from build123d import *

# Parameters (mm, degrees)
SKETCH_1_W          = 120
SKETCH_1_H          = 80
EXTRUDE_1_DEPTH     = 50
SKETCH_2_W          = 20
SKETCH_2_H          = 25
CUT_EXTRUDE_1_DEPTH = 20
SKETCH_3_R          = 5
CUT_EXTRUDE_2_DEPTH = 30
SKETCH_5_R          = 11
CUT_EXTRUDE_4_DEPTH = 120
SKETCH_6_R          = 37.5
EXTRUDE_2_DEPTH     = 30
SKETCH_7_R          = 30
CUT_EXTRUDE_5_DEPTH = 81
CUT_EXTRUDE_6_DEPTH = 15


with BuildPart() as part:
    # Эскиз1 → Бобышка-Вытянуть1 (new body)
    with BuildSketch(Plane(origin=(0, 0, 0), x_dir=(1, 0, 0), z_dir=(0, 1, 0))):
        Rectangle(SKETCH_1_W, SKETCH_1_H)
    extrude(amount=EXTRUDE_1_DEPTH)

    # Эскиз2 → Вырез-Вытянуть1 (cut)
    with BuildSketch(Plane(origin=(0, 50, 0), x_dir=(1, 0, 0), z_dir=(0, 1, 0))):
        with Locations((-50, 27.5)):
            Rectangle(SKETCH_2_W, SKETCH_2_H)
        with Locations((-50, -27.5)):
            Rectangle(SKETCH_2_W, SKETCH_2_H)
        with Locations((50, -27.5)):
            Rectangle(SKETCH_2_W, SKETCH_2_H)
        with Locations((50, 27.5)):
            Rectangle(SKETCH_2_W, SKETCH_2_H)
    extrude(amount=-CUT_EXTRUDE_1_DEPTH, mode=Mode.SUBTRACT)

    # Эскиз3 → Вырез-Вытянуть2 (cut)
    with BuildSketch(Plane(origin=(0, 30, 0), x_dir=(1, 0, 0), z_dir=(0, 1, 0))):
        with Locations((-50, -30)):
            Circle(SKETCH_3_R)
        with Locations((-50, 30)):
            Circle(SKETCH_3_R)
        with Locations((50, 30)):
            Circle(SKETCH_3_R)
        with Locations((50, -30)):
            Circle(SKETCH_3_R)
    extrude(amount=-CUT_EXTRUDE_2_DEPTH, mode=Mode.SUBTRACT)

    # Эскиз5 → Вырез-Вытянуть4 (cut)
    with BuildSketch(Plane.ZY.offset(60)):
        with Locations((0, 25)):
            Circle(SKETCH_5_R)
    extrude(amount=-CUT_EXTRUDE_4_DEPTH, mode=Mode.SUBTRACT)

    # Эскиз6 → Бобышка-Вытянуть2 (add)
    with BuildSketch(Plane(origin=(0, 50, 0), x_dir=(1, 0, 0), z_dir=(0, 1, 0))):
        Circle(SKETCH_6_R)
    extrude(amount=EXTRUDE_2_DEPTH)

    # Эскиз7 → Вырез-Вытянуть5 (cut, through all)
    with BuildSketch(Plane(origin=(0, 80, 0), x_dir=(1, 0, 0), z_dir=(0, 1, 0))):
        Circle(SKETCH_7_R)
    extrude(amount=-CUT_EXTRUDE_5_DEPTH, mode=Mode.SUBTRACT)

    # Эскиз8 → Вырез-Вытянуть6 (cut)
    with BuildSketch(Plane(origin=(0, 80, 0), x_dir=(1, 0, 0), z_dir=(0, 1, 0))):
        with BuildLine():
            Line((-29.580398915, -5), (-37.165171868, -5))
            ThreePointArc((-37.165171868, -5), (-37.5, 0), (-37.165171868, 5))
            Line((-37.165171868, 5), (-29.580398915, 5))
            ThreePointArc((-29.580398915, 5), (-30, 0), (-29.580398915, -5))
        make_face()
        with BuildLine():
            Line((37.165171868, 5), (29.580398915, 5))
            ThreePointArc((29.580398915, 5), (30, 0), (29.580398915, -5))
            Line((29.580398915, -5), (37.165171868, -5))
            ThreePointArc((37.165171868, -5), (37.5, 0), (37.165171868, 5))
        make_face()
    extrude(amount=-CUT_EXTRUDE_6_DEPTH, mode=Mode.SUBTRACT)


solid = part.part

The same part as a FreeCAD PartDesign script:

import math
import FreeCAD as App
import Part
import Sketcher

V = App.Vector
Q = App.Units.Quantity


def add_polygon(sketch, points):
    """Adds a closed chain of lines whose ends are joined by coincident constraints."""
    first, n = sketch.GeometryCount, len(points)
    for a, b in zip(points, points[1:] + points[:1]):
        sketch.addGeometry(Part.LineSegment(App.Vector(*a, 0), App.Vector(*b, 0)), False)
    for i in range(n):
        sketch.addConstraint(Sketcher.Constraint("Coincident", first + i, 2, first + (i + 1) % n, 1))

doc = App.newDocument("Part")
body = doc.addObject("PartDesign::Body", "Body")

# Sketch on XZ plane
sketch1 = body.newObject("Sketcher::SketchObject", "Sketch")
sketch1.AttachmentSupport = (doc.getObject("XZ_Plane"), [""])
sketch1.MapMode = "FlatFace"
add_polygon(sketch1, [(-60, -40), (-60, 40), (60, 40), (60, -40)])  # lines 0-3
sketch1.addConstraint([
    Sketcher.Constraint("Vertical", 0),
    Sketcher.Constraint("Horizontal", 1),
    Sketcher.Constraint("Vertical", 2),
    Sketcher.Constraint("Horizontal", 3),
    Sketcher.Constraint("Symmetric", 0, 2, 2, 2, -1, 1),
    Sketcher.Constraint("DistanceX", 1, 1, 1, 2, Q("120 mm")),
    Sketcher.Constraint("DistanceY", 0, 1, 0, 2, Q("80 mm")),
])
pad1 = body.newObject("PartDesign::Pad", "Pad")
pad1.Profile = sketch1
pad1.Length = 50
pad1.Reversed = True

# Sketch on XZ plane
sketch2 = body.newObject("Sketcher::SketchObject", "Sketch001")
sketch2.AttachmentSupport = (doc.getObject("XZ_Plane"), [""])
sketch2.MapMode = "FlatFace"
sketch2.AttachmentOffset = App.Placement(V(0, 0, -50), App.Rotation())
add_polygon(sketch2, [(-60, -40), (-60, -15), (-40, -15), (-40, -40)])  # lines 0-3
add_polygon(sketch2, [(-60, 15), (-60, 40), (-40, 40), (-40, 15)])  # lines 4-7
add_polygon(sketch2, [(40, 15), (40, 40), (60, 40), (60, 15)])  # lines 8-11
add_polygon(sketch2, [(40, -40), (40, -15), (60, -15), (60, -40)])  # lines 12-15
sketch2.addConstraint([
    Sketcher.Constraint("Vertical", 0),
    Sketcher.Constraint("Horizontal", 1),
    Sketcher.Constraint("Vertical", 2),
    Sketcher.Constraint("Horizontal", 3),
    Sketcher.Constraint("Vertical", 4),
    Sketcher.Constraint("Horizontal", 5),
    Sketcher.Constraint("Vertical", 6),
    Sketcher.Constraint("Horizontal", 7),
    Sketcher.Constraint("Vertical", 8),
    Sketcher.Constraint("Horizontal", 9),
    Sketcher.Constraint("Vertical", 10),
    Sketcher.Constraint("Horizontal", 11),
    Sketcher.Constraint("Vertical", 12),
    Sketcher.Constraint("Horizontal", 13),
    Sketcher.Constraint("Vertical", 14),
    Sketcher.Constraint("Horizontal", 15),
    Sketcher.Constraint("Symmetric", 2, 2, 8, 2, -1, 1),
    Sketcher.Constraint("Symmetric", 0, 2, 10, 2, -1, 1),
    Sketcher.Constraint("Symmetric", 6, 2, 12, 2, -1, 1),
    Sketcher.Constraint("Symmetric", 4, 2, 14, 2, -1, 1),
    Sketcher.Constraint("Symmetric", 5, 2, 8, 2, -2),
    Sketcher.Constraint("Symmetric", 7, 2, 10, 2, -2),
    Sketcher.Constraint("DistanceX", 1, 1, 1, 2, Q("20 mm")),
    Sketcher.Constraint("DistanceY", 0, 1, 0, 2, Q("25 mm")),
    Sketcher.Constraint("DistanceX", 0, 2, -1, 1, Q("60 mm")),
    Sketcher.Constraint("DistanceY", 0, 2, -1, 1, Q("15 mm")),
])
pocket1 = body.newObject("PartDesign::Pocket", "Pocket")
pocket1.Profile = sketch2
pocket1.Length = 20
pocket1.Reversed = True

# Sketch on XZ plane
sketch3 = body.newObject("Sketcher::SketchObject", "Sketch002")
sketch3.AttachmentSupport = (doc.getObject("XZ_Plane"), [""])
sketch3.MapMode = "FlatFace"
sketch3.AttachmentOffset = App.Placement(V(0, 0, -30), App.Rotation())
sketch3.addGeometry([
    Part.Circle(V(-50, 30, 0), V(0, 0, 1), 5),
    Part.Circle(V(-50, -30, 0), V(0, 0, 1), 5),
    Part.Circle(V(50, -30, 0), V(0, 0, 1), 5),
    Part.Circle(V(50, 30, 0), V(0, 0, 1), 5),
], False)
sketch3.addConstraint([
    Sketcher.Constraint("Equal", 0, 1),
    Sketcher.Constraint("Equal", 1, 2),
    Sketcher.Constraint("Equal", 2, 3),
    Sketcher.Constraint("Symmetric", 0, 3, 2, 3, -1, 1),
    Sketcher.Constraint("Symmetric", 1, 3, 3, 3, -1, 1),
    Sketcher.Constraint("Symmetric", 1, 3, 2, 3, -2),
    Sketcher.Constraint("Diameter", 0, Q("10 mm")),
    Sketcher.Constraint("DistanceX", 0, 3, -1, 1, Q("50 mm")),
    Sketcher.Constraint("DistanceY", -1, 1, 0, 3, Q("30 mm")),
])
pocket2 = body.newObject("PartDesign::Pocket", "Pocket001")
pocket2.Profile = sketch3
pocket2.Length = 30
pocket2.Reversed = True

# Sketch on YZ plane
sketch4 = body.newObject("Sketcher::SketchObject", "Sketch003")
sketch4.AttachmentSupport = (doc.getObject("YZ_Plane"), [""])
sketch4.MapMode = "FlatFace"
sketch4.AttachmentOffset = App.Placement(V(0, 0, -60), App.Rotation())
sketch4.addGeometry(Part.Circle(V(25, 0, 0), V(0, 0, 1), 11), False)
sketch4.addConstraint([
    Sketcher.Constraint("PointOnObject", 0, 3, -1),
    Sketcher.Constraint("Diameter", 0, Q("22 mm")),
    Sketcher.Constraint("DistanceX", -1, 1, 0, 3, Q("25 mm")),
])
pocket3 = body.newObject("PartDesign::Pocket", "Pocket002")
pocket3.Profile = sketch4
pocket3.Length = 120
pocket3.Reversed = True

# Sketch on XZ plane
sketch5 = body.newObject("Sketcher::SketchObject", "Sketch004")
sketch5.AttachmentSupport = (doc.getObject("XZ_Plane"), [""])
sketch5.MapMode = "FlatFace"
sketch5.AttachmentOffset = App.Placement(V(0, 0, -50), App.Rotation())
sketch5.addGeometry(Part.Circle(V(0, 0, 0), V(0, 0, 1), 37.5), False)
sketch5.addConstraint([
    Sketcher.Constraint("Coincident", 0, 3, -1, 1),
    Sketcher.Constraint("Diameter", 0, Q("75 mm")),
])
pad2 = body.newObject("PartDesign::Pad", "Pad001")
pad2.Profile = sketch5
pad2.Length = 30
pad2.Reversed = True

# Sketch on XZ plane
sketch6 = body.newObject("Sketcher::SketchObject", "Sketch005")
sketch6.AttachmentSupport = (doc.getObject("XZ_Plane"), [""])
sketch6.MapMode = "FlatFace"
sketch6.AttachmentOffset = App.Placement(V(0, 0, -80), App.Rotation())
sketch6.addGeometry(Part.Circle(V(0, 0, 0), V(0, 0, 1), 30), False)
sketch6.addConstraint([
    Sketcher.Constraint("Coincident", 0, 3, -1, 1),
    Sketcher.Constraint("Diameter", 0, Q("60 mm")),
])
pocket4 = body.newObject("PartDesign::Pocket", "Pocket003")
pocket4.Profile = sketch6
pocket4.Type = "ThroughAll"
pocket4.Reversed = True

# Sketch on XZ plane
sketch7 = body.newObject("Sketcher::SketchObject", "Sketch006")
sketch7.AttachmentSupport = (doc.getObject("XZ_Plane"), [""])
sketch7.MapMode = "FlatFace"
sketch7.AttachmentOffset = App.Placement(V(0, 0, -80), App.Rotation())
sketch7.addGeometry([
    Part.LineSegment(V(-37.165172, 5, 0), V(-29.580399, 5, 0)),  # 0
    Part.ArcOfCircle(Part.Circle(V(0, 0, 0), V(0, 0, 1), 30), math.radians(170.405932), math.radians(189.594068)),  # 1
    Part.LineSegment(V(-29.580399, -5, 0), V(-37.165172, -5, 0)),  # 2
    Part.ArcOfCircle(Part.Circle(V(0, 0, 0), V(0, 0, 1), 37.5), math.radians(172.337744), math.radians(187.662256)),  # 3
    Part.LineSegment(V(37.165172, -5, 0), V(29.580399, -5, 0)),  # 4
    Part.ArcOfCircle(Part.Circle(V(0, 0, 0), V(0, 0, 1), 30), math.radians(-9.594068), math.radians(9.594068)),  # 5
    Part.LineSegment(V(29.580399, 5, 0), V(37.165172, 5, 0)),  # 6
    Part.ArcOfCircle(Part.Circle(V(0, 0, 0), V(0, 0, 1), 37.5), math.radians(-7.662256), math.radians(7.662256)),  # 7
], False)
sketch7.addConstraint([
    Sketcher.Constraint("Coincident", 0, 2, 1, 1),
    Sketcher.Constraint("Coincident", 1, 2, 2, 1),
    Sketcher.Constraint("Coincident", 2, 2, 3, 2),
    Sketcher.Constraint("Coincident", 3, 1, 0, 1),
    Sketcher.Constraint("Coincident", 4, 2, 5, 1),
    Sketcher.Constraint("Coincident", 5, 2, 6, 1),
    Sketcher.Constraint("Coincident", 6, 2, 7, 2),
    Sketcher.Constraint("Coincident", 7, 1, 4, 1),
    Sketcher.Constraint("Horizontal", 0),
    Sketcher.Constraint("Horizontal", 2),
    Sketcher.Constraint("Horizontal", 4),
    Sketcher.Constraint("Horizontal", 6),
    Sketcher.Constraint("Coincident", 1, 3, -1, 1),
    Sketcher.Constraint("Coincident", 3, 3, -1, 1),
    Sketcher.Constraint("Coincident", 5, 3, -1, 1),
    Sketcher.Constraint("Coincident", 7, 3, -1, 1),
    Sketcher.Constraint("Equal", 1, 5),
    Sketcher.Constraint("Equal", 3, 7),
    Sketcher.Constraint("Horizontal", 2, 2, 4, 2),
    Sketcher.Constraint("Horizontal", 3, 1, 5, 2),
    Sketcher.Constraint("Vertical", 0, 2, 1, 2),
    Sketcher.Constraint("Radius", 1, Q("30 mm")),
    Sketcher.Constraint("Radius", 3, Q("37.5 mm")),
    Sketcher.Constraint("DistanceY", -1, 1, 0, 2, Q("5 mm")),
])
pocket5 = body.newObject("PartDesign::Pocket", "Pocket004")
pocket5.Profile = sketch7
pocket5.Length = 15
pocket5.Reversed = True

doc.recompute()
